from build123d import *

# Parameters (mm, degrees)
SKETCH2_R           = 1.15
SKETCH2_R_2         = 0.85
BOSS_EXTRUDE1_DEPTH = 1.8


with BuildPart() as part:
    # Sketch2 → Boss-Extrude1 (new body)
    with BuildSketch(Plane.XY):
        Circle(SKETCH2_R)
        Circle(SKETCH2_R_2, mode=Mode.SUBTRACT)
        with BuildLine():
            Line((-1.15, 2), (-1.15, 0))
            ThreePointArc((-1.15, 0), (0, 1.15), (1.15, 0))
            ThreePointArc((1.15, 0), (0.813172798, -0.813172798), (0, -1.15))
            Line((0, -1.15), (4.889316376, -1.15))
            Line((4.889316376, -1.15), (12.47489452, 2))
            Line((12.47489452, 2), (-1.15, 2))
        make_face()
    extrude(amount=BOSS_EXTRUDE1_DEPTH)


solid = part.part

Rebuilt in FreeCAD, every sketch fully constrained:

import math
import FreeCAD as App
import Part
import Sketcher

doc = App.newDocument("Part")
body = doc.addObject("PartDesign::Body", "Body")

sketch1 = body.newObject("Sketcher::SketchObject", "Sketch")
sketch1.AttachmentSupport = (doc.getObject("XY_Plane"), [""])
sketch1.MapMode = "FlatFace"
sketch1.addGeometry(Part.ArcOfCircle(Part.Circle(App.Vector(0, 0, 0), App.Vector(0, 0, 1), 1.15), math.radians(180), math.radians(270)), False)
sketch1.addGeometry(Part.LineSegment(App.Vector(0, -1.15, 0), App.Vector(4.889316, -1.15, 0)), False)
sketch1.addGeometry(Part.LineSegment(App.Vector(4.889316, -1.15, 0), App.Vector(12.474895, 2, 0)), False)
sketch1.addGeometry(Part.LineSegment(App.Vector(12.474895, 2, 0), App.Vector(-1.15, 2, 0)), False)
sketch1.addGeometry(Part.LineSegment(App.Vector(-1.15, 2, 0), App.Vector(-1.15, 0, 0)), False)
sketch1.addGeometry(Part.Circle(App.Vector(0, 0, 0), App.Vector(0, 0, 1), 0.85), False)
sketch1.addConstraint(Sketcher.Constraint("Tangent", 0, 2, 1, 1))
sketch1.addConstraint(Sketcher.Constraint("Coincident", 1, 2, 2, 1))
sketch1.addConstraint(Sketcher.Constraint("Coincident", 2, 2, 3, 1))
sketch1.addConstraint(Sketcher.Constraint("Coincident", 3, 2, 4, 1))
sketch1.addConstraint(Sketcher.Constraint("Tangent", 4, 2, 0, 1))
sketch1.addConstraint(Sketcher.Constraint("Horizontal", 1))
sketch1.addConstraint(Sketcher.Constraint("Horizontal", 3))
sketch1.addConstraint(Sketcher.Constraint("Vertical", 4))
sketch1.addConstraint(Sketcher.Constraint("Coincident", 0, 3, -1, 1))
sketch1.addConstraint(Sketcher.Constraint("Coincident", 5, 3, -1, 1))
sketch1.addConstraint(Sketcher.Constraint("Diameter", 5, 1.7))
sketch1.addConstraint(Sketcher.Constraint("DistanceY", 4, 2, 4, 1, 2.0))
sketch1.addConstraint(Sketcher.Constraint("Radius", 0, 1.15))
sketch1.addConstraint(Sketcher.Constraint("DistanceX", 1, 1, 1, 2, 4.889316))
sketch1.addConstraint(Sketcher.Constraint("DistanceX", 3, 2, 3, 1, 13.624895))
pad1 = body.newObject("PartDesign::Pad", "Pad")
pad1.Profile = sketch1
pad1.Length = 1.8

doc.recompute()
